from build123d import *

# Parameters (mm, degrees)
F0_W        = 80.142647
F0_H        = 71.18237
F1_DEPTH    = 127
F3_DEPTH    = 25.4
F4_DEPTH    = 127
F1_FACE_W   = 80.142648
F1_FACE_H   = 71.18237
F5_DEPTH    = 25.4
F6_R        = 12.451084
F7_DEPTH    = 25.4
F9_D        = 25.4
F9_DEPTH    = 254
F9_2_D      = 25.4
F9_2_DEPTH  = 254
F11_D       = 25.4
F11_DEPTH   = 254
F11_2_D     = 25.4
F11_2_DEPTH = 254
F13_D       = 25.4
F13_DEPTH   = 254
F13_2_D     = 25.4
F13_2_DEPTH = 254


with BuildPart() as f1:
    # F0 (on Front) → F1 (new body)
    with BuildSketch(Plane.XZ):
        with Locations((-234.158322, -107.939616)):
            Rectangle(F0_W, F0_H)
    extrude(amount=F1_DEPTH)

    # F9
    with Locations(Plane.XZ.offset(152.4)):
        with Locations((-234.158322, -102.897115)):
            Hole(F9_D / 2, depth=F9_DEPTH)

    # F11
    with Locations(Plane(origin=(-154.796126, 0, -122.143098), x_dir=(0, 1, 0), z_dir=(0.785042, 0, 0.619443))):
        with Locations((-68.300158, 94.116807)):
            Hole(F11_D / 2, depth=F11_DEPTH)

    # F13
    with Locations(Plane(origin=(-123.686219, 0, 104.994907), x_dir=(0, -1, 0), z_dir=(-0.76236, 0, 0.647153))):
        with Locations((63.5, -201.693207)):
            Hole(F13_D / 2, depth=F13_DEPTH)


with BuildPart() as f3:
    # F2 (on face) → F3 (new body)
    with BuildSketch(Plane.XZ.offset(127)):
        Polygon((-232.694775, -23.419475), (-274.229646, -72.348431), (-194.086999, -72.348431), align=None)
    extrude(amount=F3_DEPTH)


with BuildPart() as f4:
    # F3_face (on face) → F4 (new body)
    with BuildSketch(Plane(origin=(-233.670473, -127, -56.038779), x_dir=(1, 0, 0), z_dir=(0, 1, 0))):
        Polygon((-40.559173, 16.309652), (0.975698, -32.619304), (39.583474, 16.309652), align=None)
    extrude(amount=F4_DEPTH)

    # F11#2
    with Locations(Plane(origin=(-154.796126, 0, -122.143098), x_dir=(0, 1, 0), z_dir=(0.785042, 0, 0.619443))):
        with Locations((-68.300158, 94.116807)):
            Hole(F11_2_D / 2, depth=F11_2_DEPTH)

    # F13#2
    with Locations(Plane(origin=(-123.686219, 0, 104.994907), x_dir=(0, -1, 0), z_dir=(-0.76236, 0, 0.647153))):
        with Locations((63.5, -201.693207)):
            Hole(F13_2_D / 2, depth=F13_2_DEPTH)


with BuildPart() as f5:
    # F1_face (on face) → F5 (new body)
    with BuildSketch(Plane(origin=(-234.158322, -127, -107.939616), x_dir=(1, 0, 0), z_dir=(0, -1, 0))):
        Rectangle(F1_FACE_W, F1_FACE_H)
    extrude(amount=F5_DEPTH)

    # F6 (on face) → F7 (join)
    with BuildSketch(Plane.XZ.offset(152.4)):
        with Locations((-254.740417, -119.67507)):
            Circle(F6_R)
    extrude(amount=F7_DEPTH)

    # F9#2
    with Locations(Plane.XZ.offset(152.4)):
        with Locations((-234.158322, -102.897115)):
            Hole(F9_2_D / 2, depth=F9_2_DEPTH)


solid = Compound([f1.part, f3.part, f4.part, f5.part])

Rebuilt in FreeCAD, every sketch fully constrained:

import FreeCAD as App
import Part
import Sketcher
from FreeCAD import Vector
Q = App.Units.Quantity


def add_polygon(sketch, points):
    """Adds a closed chain of lines whose ends are joined by coincident constraints."""
    first, n = sketch.GeometryCount, len(points)
    for a, b in zip(points, points[1:] + points[:1]):
        sketch.addGeometry(Part.LineSegment(App.Vector(*a, 0), App.Vector(*b, 0)), False)
    for i in range(n):
        sketch.addConstraint(Sketcher.Constraint("Coincident", first + i, 2, first + (i + 1) % n, 1))

doc = App.newDocument("Part")
body = doc.addObject("PartDesign::Body", "Body")

# Sketch on XZ plane
sketch1 = body.newObject("Sketcher::SketchObject", "Sketch")
sketch1.AttachmentSupport = (doc.getObject("XZ_Plane"), [""])
sketch1.MapMode = "FlatFace"
add_polygon(sketch1, [(-274, -72), (-274, -144), (-194, -144), (-194, -72)])  # lines 0-3
sketch1.addConstraint([
    Sketcher.Constraint("Vertical", 0),
    Sketcher.Constraint("Horizontal", 1),
    Sketcher.Constraint("Vertical", 2),
    Sketcher.Constraint("Horizontal", 3),
    Sketcher.Constraint("DistanceY", 0, 2, 0, 1, Q("71.18237 mm")),
    Sketcher.Constraint("DistanceY", 0, 2, -1, 1, Q("143.530801 mm")),
    Sketcher.Constraint("DistanceX", 1, 2, -1, 1, Q("194.086998 mm")),
    Sketcher.Constraint("DistanceX", 1, 1, 1, 2, Q("80.142647 mm")),
])
pad1 = body.newObject("PartDesign::Pad", "Pad")
pad1.Profile = sketch1
pad1.Length = Q("5 in")

# Sketch on XZ plane
sketch2 = body.newObject("Sketcher::SketchObject", "Sketch001")
sketch2.AttachmentSupport = (doc.getObject("XZ_Plane"), [""])
sketch2.MapMode = "FlatFace"
sketch2.AttachmentOffset = App.Placement(Vector(0, 0, 6 * 25.4), App.Rotation())
sketch2.addGeometry(Part.Circle(Vector(-234, -103, 0), Vector(0, 0, 1), 13), False)
sketch2.addConstraint([
    Sketcher.Constraint("Diameter", 0, Q("1 in")),
    Sketcher.Constraint("DistanceX", 0, 3, -1, 1, Q("234.158322 mm")),
    Sketcher.Constraint("DistanceY", 0, 3, -1, 1, Q("102.897115 mm")),
])
doc.recompute()
hole = body.newObject("PartDesign::Hole", "Hole")
hole.Profile = sketch2
hole.ThreadType = "None"
hole.Diameter = Q("1 in")
hole.DepthType = "Dimension"
hole.Depth = Q("10 in")
hole.DrillPoint = "Flat"

# Sketch on an angled plane
sketch3 = body.newObject("Sketcher::SketchObject", "Sketch002")
sketch3.Placement = App.Placement(Vector(-154.796179, 0, -122.143031), App.Rotation(Vector(0, 1, 0), Vector(-0.619442823, 0, 0.785041775), Vector(0.785041775, 0, 0.619442823), "ZXY"))
sketch3.addGeometry(Part.Circle(Vector(-68, 94, 0), Vector(0, 0, 1), 13), False)
sketch3.addConstraint([
    Sketcher.Constraint("Diameter", 0, Q("1 in")),
    Sketcher.Constraint("DistanceY", -1, 1, 0, 3, Q("94.116722 mm")),
    Sketcher.Constraint("DistanceX", 0, 3, -1, 1, Q("68.300158 mm")),
])
doc.recompute()
hole2 = body.newObject("PartDesign::Hole", "Hole001")
hole2.Profile = sketch3
hole2.ThreadType = "None"
hole2.Diameter = Q("1 in")
hole2.DepthType = "Dimension"
hole2.Depth = Q("10 in")
hole2.DrillPoint = "Flat"

# Sketch on an angled plane
sketch4 = body.newObject("Sketcher::SketchObject", "Sketch003")
sketch4.Placement = App.Placement(Vector(-123.686225, 0, 104.9949), App.Rotation(Vector(0, -1, 0), Vector(0.647153073, 0, 0.762360086), Vector(-0.762360086, 0, 0.647153073), "ZXY"))
sketch4.addGeometry(Part.Circle(Vector(64, -202, 0), Vector(0, 0, 1), 13), False)
sketch4.addConstraint([
    Sketcher.Constraint("Diameter", 0, Q("1 in")),
    Sketcher.Constraint("DistanceX", -1, 1, 0, 3, Q("2.5 in")),
    Sketcher.Constraint("DistanceY", 0, 3, -1, 1, Q("201.693198 mm")),
])
doc.recompute()
hole3 = body.newObject("PartDesign::Hole", "Hole002")
hole3.Profile = sketch4
hole3.ThreadType = "None"
hole3.Diameter = Q("1 in")
hole3.DepthType = "Dimension"
hole3.Depth = Q("10 in")
hole3.DrillPoint = "Flat"
body2 = doc.addObject("PartDesign::Body", "Body001")

# Sketch on XZ plane
sketch5 = body2.newObject("Sketcher::SketchObject", "Sketch004")
sketch5.AttachmentSupport = (doc.getObject("XZ_Plane001"), [""])
sketch5.MapMode = "FlatFace"
sketch5.AttachmentOffset = App.Placement(Vector(0, 0, 5 * 25.4), App.Rotation())
add_polygon(sketch5, [(-233, -23), (-274, -72), (-194, -72)])  # lines 0-2
sketch5.addConstraint([
    Sketcher.Constraint("Horizontal", 1),
    Sketcher.Constraint("DistanceX", 1, 2, -1, 1, Q("194.086999 mm")),
    Sketcher.Constraint("DistanceX", 1, 1, 1, 2, Q("80.142647 mm")),
    Sketcher.Constraint("DistanceY", 0, 2, -1, 1, Q("72.348431 mm")),
    Sketcher.Constraint("DistanceX", 0, 2, 2, 2, Q("41.534871 mm")),
    Sketcher.Constraint("Distance", 0, Q("64.180902 mm")),
])
pad2 = body2.newObject("PartDesign::Pad", "Pad001")
pad2.Profile = sketch5
pad2.Length = Q("1 in")
body3 = doc.addObject("PartDesign::Body", "Body002")

# Sketch on XZ plane
sketch6 = body3.newObject("Sketcher::SketchObject", "Sketch005")
sketch6.AttachmentSupport = (doc.getObject("XZ_Plane002"), [""])
sketch6.MapMode = "FlatFace"
sketch6.AttachmentOffset = App.Placement(Vector(0, 0, 5 * 25.4), App.Rotation())
add_polygon(sketch6, [(-274, -72), (-233, -23), (-194, -72)])  # lines 0-2
sketch6.addConstraint([
    Sketcher.Constraint("Horizontal", 2),
    Sketcher.Constraint("DistanceX", 1, 2, -1, 1, Q("194.086999 mm")),
    Sketcher.Constraint("DistanceX", 2, 2, 2, 1, Q("80.142647 mm")),
    Sketcher.Constraint("DistanceY", 1, 2, -1, 1, Q("72.348431 mm")),
    Sketcher.Constraint("DistanceX", 2, 2, 0, 2, Q("41.534871 mm")),
    Sketcher.Constraint("Distance", 0, Q("64.180902 mm")),
])
pad3 = body3.newObject("PartDesign::Pad", "Pad002")
pad3.Profile = sketch6
pad3.Length = Q("5 in")
pad3.Reversed = True

# Sketch on an angled plane
sketch7 = body3.newObject("Sketcher::SketchObject", "Sketch006")
sketch7.Placement = App.Placement(Vector(-154.796179, 0, -122.143031), App.Rotation(Vector(0, 1, 0), Vector(-0.619442823, 0, 0.785041775), Vector(0.785041775, 0, 0.619442823), "ZXY"))
sketch7.addGeometry(Part.Circle(Vector(-68, 94, 0), Vector(0, 0, 1), 13), False)
sketch7.addConstraint([
    Sketcher.Constraint("Diameter", 0, Q("1 in")),
    Sketcher.Constraint("DistanceY", -1, 1, 0, 3, Q("94.116722 mm")),
    Sketcher.Constraint("DistanceX", 0, 3, -1, 1, Q("68.300158 mm")),
])
doc.recompute()
hole4 = body3.newObject("PartDesign::Hole", "Hole003")
hole4.Profile = sketch7
hole4.ThreadType = "None"
hole4.Diameter = Q("1 in")
hole4.DepthType = "Dimension"
hole4.Depth = Q("10 in")
hole4.DrillPoint = "Flat"

# Sketch on an angled plane
sketch8 = body3.newObject("Sketcher::SketchObject", "Sketch007")
sketch8.Placement = App.Placement(Vector(-123.686225, 0, 104.9949), App.Rotation(Vector(0, -1, 0), Vector(0.647153073, 0, 0.762360086), Vector(-0.762360086, 0, 0.647153073), "ZXY"))
sketch8.addGeometry(Part.Circle(Vector(64, -202, 0), Vector(0, 0, 1), 13), False)
sketch8.addConstraint([
    Sketcher.Constraint("Diameter", 0, Q("1 in")),
    Sketcher.Constraint("DistanceX", -1, 1, 0, 3, Q("2.5 in")),
    Sketcher.Constraint("DistanceY", 0, 3, -1, 1, Q("201.693198 mm")),
])
doc.recompute()
hole5 = body3.newObject("PartDesign::Hole", "Hole004")
hole5.Profile = sketch8
hole5.ThreadType = "None"
hole5.Diameter = Q("1 in")
hole5.DepthType = "Dimension"
hole5.Depth = Q("10 in")
hole5.DrillPoint = "Flat"
body4 = doc.addObject("PartDesign::Body", "Body003")

# Sketch on XZ plane
sketch9 = body4.newObject("Sketcher::SketchObject", "Sketch008")
sketch9.AttachmentSupport = (doc.getObject("XZ_Plane003"), [""])
sketch9.MapMode = "FlatFace"
sketch9.AttachmentOffset = App.Placement(Vector(0, 0, 5 * 25.4), App.Rotation())
add_polygon(sketch9, [(-274, -72), (-274, -144), (-194, -144), (-194, -72)])  # lines 0-3
sketch9.addConstraint([
    Sketcher.Constraint("Vertical", 0),
    Sketcher.Constraint("Horizontal", 1),
    Sketcher.Constraint("Vertical", 2),
    Sketcher.Constraint("Horizontal", 3),
    Sketcher.Constraint("DistanceX", 1, 1, 1, 2, Q("80.142648 mm")),
    Sketcher.Constraint("DistanceY", 0, 2, 0, 1, Q("71.18237 mm")),
    Sketcher.Constraint("DistanceY", 0, 2, -1, 1, Q("143.530801 mm")),
    Sketcher.Constraint("DistanceX", 1, 2, -1, 1, Q("194.086998 mm")),
])
pad4 = body4.newObject("PartDesign::Pad", "Pad003")
pad4.Profile = sketch9
pad4.Length = Q("1 in")

# Sketch on XZ plane
sketch10 = body4.newObject("Sketcher::SketchObject", "Sketch009")
sketch10.AttachmentSupport = (doc.getObject("XZ_Plane003"), [""])
sketch10.MapMode = "FlatFace"
sketch10.AttachmentOffset = App.Placement(Vector(0, 0, 6 * 25.4), App.Rotation())
sketch10.addGeometry(Part.Circle(Vector(-255, -120, 0), Vector(0, 0, 1), 12), False)
sketch10.addConstraint([
    Sketcher.Constraint("Diameter", 0, Q("24.902168 mm")),
    Sketcher.Constraint("DistanceY", 0, 3, -1, 1, Q("119.67507 mm")),
    Sketcher.Constraint("DistanceX", 0, 3, -1, 1, Q("254.740417 mm")),
])
pad5 = body4.newObject("PartDesign::Pad", "Pad004")
pad5.Profile = sketch10
pad5.Length = Q("1 in")

# Sketch on XZ plane
sketch11 = body4.newObject("Sketcher::SketchObject", "Sketch010")
sketch11.AttachmentSupport = (doc.getObject("XZ_Plane003"), [""])
sketch11.MapMode = "FlatFace"
sketch11.AttachmentOffset = App.Placement(Vector(0, 0, 6 * 25.4), App.Rotation())
sketch11.addGeometry(Part.Circle(Vector(-234, -103, 0), Vector(0, 0, 1), 13), False)
sketch11.addConstraint([
    Sketcher.Constraint("Diameter", 0, Q("1 in")),
    Sketcher.Constraint("DistanceX", 0, 3, -1, 1, Q("234.158322 mm")),
    Sketcher.Constraint("DistanceY", 0, 3, -1, 1, Q("102.897115 mm")),
])
doc.recompute()
hole6 = body4.newObject("PartDesign::Hole", "Hole005")
hole6.Profile = sketch11
hole6.ThreadType = "None"
hole6.Diameter = Q("1 in")
hole6.DepthType = "Dimension"
hole6.Depth = Q("10 in")
hole6.DrillPoint = "Flat"

doc.recompute()
